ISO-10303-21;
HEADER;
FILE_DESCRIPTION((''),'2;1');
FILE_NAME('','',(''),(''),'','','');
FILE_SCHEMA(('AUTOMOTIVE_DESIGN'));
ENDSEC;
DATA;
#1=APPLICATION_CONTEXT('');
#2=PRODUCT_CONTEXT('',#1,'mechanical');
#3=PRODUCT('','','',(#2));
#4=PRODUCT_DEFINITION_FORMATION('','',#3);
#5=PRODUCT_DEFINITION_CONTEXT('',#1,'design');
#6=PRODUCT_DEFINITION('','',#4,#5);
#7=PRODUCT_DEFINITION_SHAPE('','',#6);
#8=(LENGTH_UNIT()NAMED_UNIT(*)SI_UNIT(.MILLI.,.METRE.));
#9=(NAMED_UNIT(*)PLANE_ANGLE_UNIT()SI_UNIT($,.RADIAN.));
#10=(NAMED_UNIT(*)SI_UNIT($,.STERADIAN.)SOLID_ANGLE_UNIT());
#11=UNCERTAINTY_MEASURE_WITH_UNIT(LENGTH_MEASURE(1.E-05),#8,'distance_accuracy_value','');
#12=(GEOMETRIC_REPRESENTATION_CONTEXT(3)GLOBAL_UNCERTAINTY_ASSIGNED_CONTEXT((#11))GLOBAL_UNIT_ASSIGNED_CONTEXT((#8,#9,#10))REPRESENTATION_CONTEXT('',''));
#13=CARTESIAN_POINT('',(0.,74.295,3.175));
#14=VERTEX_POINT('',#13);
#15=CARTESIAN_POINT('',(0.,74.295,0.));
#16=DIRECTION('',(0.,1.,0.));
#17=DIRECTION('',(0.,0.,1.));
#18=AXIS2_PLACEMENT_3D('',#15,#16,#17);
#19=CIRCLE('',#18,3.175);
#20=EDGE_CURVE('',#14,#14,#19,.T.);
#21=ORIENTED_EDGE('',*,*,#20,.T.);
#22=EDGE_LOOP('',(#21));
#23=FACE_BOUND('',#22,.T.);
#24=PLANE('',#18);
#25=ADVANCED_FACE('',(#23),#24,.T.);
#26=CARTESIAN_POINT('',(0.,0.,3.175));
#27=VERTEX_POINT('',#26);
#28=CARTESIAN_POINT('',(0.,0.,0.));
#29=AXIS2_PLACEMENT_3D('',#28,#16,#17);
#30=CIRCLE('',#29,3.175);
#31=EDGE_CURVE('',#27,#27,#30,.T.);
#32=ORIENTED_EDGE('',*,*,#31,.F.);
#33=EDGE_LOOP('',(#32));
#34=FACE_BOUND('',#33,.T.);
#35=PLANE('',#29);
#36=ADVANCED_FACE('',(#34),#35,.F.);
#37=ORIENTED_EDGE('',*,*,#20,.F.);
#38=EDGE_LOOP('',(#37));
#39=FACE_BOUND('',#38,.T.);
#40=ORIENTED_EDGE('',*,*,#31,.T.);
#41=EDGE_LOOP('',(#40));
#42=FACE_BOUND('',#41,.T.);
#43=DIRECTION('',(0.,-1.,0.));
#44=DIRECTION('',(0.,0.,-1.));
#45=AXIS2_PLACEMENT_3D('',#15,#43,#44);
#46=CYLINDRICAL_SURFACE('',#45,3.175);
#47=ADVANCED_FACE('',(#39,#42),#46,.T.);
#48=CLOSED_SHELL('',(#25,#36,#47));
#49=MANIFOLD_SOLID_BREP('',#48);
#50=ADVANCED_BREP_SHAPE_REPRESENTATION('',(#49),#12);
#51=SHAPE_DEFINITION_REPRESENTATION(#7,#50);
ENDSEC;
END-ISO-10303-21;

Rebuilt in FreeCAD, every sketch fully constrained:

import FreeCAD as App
import Part
import Sketcher

V = App.Vector
Q = App.Units.Quantity

doc = App.newDocument("Part")
body = doc.addObject("PartDesign::Body", "Body")

# Sketch on XZ plane
sketch1 = body.newObject("Sketcher::SketchObject", "Sketch")
sketch1.AttachmentSupport = (doc.getObject("XZ_Plane"), [""])
sketch1.MapMode = "FlatFace"
sketch1.addGeometry(Part.Circle(V(0, 0, 0), V(0, 0, 1), 3.2), False)
sketch1.addConstraint([
    Sketcher.Constraint("Coincident", 0, 3, -1, 1),
    Sketcher.Constraint("Diameter", 0, Q("0.25 in")),
])
pad1 = body.newObject("PartDesign::Pad", "Pad")
pad1.Profile = sketch1
pad1.Length = Q("2.925 in")
pad1.Reversed = True

doc.recompute()
